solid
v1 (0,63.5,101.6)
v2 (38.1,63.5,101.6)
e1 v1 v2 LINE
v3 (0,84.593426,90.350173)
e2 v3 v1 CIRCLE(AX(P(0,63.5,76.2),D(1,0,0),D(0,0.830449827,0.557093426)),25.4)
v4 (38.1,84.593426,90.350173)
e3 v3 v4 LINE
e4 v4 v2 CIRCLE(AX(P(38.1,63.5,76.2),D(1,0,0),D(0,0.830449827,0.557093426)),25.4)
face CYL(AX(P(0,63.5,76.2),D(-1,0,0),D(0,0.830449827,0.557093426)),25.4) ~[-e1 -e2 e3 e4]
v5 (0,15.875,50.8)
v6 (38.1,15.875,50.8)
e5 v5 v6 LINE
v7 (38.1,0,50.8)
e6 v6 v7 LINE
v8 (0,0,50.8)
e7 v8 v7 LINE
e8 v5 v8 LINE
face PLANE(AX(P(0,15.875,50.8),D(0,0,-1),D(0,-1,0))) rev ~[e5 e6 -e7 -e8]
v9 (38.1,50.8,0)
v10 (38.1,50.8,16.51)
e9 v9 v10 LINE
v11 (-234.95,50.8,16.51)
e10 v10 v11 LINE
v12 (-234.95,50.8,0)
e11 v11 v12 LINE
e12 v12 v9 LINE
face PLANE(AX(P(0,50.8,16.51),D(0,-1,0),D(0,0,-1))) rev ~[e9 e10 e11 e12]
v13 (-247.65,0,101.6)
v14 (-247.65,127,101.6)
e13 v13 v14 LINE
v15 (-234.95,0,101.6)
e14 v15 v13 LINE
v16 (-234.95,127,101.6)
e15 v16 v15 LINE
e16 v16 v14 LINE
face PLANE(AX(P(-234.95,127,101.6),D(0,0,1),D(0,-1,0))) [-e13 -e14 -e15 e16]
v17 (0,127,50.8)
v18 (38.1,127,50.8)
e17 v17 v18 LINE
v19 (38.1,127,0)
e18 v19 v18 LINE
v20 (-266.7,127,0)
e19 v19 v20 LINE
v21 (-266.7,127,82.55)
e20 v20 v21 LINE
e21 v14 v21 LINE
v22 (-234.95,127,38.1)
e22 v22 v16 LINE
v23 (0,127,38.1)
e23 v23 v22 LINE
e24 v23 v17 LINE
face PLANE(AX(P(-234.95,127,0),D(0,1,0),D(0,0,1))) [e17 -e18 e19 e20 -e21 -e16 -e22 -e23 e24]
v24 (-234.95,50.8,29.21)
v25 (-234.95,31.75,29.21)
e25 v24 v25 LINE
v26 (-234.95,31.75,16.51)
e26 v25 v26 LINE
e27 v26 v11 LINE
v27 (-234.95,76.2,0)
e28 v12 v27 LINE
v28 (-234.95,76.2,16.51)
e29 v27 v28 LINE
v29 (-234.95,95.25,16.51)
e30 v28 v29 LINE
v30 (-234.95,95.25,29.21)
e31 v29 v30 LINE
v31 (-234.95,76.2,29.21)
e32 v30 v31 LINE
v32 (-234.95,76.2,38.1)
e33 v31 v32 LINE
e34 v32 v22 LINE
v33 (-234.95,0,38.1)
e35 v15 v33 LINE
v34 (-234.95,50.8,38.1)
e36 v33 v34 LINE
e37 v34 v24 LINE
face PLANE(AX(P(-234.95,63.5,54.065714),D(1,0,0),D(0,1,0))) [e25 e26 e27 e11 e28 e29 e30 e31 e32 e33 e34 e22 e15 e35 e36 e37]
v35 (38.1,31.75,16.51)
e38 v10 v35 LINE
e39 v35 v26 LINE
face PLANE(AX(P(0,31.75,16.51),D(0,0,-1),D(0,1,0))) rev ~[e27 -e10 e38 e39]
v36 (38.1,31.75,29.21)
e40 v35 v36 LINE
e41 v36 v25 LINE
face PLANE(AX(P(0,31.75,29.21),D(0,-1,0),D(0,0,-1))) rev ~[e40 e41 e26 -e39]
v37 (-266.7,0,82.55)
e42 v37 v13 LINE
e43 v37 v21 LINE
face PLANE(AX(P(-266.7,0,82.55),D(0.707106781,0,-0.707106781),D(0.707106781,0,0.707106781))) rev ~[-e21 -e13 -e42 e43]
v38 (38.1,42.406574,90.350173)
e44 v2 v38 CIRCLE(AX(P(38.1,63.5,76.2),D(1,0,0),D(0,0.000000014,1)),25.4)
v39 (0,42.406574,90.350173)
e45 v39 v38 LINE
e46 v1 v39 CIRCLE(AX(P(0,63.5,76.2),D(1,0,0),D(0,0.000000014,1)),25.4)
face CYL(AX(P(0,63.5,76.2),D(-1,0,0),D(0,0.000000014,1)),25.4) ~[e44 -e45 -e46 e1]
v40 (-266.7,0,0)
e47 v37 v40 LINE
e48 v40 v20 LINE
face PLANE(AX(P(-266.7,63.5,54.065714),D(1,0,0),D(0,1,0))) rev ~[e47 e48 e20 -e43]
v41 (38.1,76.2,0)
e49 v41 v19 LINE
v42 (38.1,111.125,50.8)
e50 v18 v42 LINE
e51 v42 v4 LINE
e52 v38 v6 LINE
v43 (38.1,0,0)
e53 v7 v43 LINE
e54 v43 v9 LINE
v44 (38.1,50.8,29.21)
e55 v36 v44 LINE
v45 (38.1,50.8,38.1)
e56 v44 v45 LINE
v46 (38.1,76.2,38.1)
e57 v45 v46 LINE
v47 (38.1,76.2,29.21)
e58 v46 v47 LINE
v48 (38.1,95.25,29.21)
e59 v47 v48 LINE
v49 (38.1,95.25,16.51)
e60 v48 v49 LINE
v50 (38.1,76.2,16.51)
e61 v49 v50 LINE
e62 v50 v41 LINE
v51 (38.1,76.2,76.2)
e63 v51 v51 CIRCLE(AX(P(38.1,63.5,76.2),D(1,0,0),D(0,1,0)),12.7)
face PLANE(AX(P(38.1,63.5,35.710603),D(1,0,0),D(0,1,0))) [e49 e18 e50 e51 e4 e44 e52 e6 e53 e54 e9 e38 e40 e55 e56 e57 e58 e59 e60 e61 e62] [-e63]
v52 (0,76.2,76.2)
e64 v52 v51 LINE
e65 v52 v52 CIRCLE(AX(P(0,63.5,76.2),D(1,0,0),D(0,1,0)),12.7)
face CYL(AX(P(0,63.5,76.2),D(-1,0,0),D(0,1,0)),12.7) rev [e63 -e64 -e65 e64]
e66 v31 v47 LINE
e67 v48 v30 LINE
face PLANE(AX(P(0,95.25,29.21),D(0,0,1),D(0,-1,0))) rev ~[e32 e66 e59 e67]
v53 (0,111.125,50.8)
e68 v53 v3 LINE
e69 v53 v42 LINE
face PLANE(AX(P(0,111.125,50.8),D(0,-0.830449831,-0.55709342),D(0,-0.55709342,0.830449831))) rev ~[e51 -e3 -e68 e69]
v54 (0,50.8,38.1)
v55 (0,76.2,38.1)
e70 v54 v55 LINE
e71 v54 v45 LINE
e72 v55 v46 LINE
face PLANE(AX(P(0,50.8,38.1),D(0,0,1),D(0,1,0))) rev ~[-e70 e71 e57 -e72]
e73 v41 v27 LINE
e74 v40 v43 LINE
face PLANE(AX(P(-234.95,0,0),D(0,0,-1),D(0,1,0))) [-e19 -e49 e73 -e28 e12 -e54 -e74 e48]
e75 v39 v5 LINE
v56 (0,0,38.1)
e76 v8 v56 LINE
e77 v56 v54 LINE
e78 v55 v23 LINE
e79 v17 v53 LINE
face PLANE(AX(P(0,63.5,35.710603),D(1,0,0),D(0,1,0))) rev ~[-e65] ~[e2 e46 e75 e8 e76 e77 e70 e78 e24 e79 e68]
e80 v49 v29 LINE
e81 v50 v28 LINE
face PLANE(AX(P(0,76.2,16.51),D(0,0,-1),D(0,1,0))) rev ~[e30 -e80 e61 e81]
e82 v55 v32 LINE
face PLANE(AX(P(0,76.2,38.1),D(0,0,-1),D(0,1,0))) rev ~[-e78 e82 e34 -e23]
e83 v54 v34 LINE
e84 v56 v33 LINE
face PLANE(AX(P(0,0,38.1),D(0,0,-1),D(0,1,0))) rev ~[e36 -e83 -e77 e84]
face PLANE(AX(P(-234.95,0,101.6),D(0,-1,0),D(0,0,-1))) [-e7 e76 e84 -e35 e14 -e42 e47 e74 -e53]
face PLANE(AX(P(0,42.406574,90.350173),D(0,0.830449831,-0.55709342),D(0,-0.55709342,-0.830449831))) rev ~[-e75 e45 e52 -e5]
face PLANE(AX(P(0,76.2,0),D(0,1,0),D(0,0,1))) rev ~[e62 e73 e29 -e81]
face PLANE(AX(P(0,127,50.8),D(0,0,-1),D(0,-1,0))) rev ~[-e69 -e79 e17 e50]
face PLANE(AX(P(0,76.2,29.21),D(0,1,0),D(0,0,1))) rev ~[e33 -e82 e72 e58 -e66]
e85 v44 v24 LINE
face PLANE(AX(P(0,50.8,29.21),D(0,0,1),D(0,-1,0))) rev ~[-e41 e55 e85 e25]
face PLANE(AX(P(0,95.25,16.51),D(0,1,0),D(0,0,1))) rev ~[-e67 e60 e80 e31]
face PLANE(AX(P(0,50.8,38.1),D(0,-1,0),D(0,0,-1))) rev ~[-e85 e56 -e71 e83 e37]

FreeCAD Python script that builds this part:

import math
import FreeCAD as App
import Part
import Sketcher
from FreeCAD import Vector
Q = App.Units.Quantity

doc = App.newDocument("Part")
body = doc.addObject("PartDesign::Body", "Body")

sketch1 = body.newObject("Sketcher::SketchObject", "Sketch")
sketch1.AttachmentSupport = (doc.getObject("YZ_Plane"), [""])
sketch1.MapMode = "FlatFace"
sketch1.addGeometry([
    Part.ArcOfCircle(Part.Circle(Vector(63.5, 76.2, 0), Vector(0, 0, 1), 25.4), math.radians(33.855026), math.radians(90.000001)),
    Part.ArcOfCircle(Part.Circle(Vector(63.5, 76.2, 0), Vector(0, 0, 1), 25.4), math.radians(89.999999), math.radians(146.144974)),
    Part.LineSegment(Vector(42.406574, 90.350173, 0), Vector(15.875, 50.8, 0)),
    Part.LineSegment(Vector(15.875, 50.8, 0), Vector(0, 50.8, 0)),
    Part.LineSegment(Vector(0, 50.8, 0), Vector(0, 0, 0)),
    Part.LineSegment(Vector(0, 0, 0), Vector(50.8, 0, 0)),
    Part.LineSegment(Vector(50.8, 0, 0), Vector(50.8, 16.51, 0)),
    Part.LineSegment(Vector(50.8, 16.51, 0), Vector(31.75, 16.51, 0)),
    Part.LineSegment(Vector(31.75, 16.51, 0), Vector(31.75, 29.21, 0)),
    Part.LineSegment(Vector(31.75, 29.21, 0), Vector(50.8, 29.21, 0)),
    Part.LineSegment(Vector(50.8, 29.21, 0), Vector(50.8, 38.1, 0)),
    Part.LineSegment(Vector(50.8, 38.1, 0), Vector(76.2, 38.1, 0)),
    Part.LineSegment(Vector(76.2, 38.1, 0), Vector(76.2, 29.21, 0)),
    Part.LineSegment(Vector(76.2, 29.21, 0), Vector(95.25, 29.21, 0)),
    Part.LineSegment(Vector(95.25, 29.21, 0), Vector(95.25, 16.51, 0)),
    Part.LineSegment(Vector(95.25, 16.51, 0), Vector(76.2, 16.51, 0)),
    Part.LineSegment(Vector(76.2, 16.51, 0), Vector(76.2, 0, 0)),
    Part.LineSegment(Vector(76.2, 0, 0), Vector(127, 0, 0)),
    Part.LineSegment(Vector(127, 0, 0), Vector(127, 50.8, 0)),
    Part.LineSegment(Vector(127, 50.8, 0), Vector(111.125, 50.8, 0)),
    Part.LineSegment(Vector(111.125, 50.8, 0), Vector(84.593426, 90.350173, 0)),
    Part.Circle(Vector(63.5, 76.2, 0), Vector(0, 0, 1), 12.7),
], False)
sketch1.addConstraint([
    Sketcher.Constraint("Tangent", 0, 2, 1, 1),
    Sketcher.Constraint("Tangent", 1, 2, 2, 1),
    Sketcher.Constraint("Coincident", 2, 2, 3, 1),
    Sketcher.Constraint("Coincident", 3, 2, 4, 1),
    Sketcher.Constraint("Coincident", 4, 2, 5, 1),
    Sketcher.Constraint("Coincident", 5, 2, 6, 1),
    Sketcher.Constraint("Coincident", 6, 2, 7, 1),
    Sketcher.Constraint("Coincident", 7, 2, 8, 1),
    Sketcher.Constraint("Coincident", 8, 2, 9, 1),
    Sketcher.Constraint("Coincident", 9, 2, 10, 1),
    Sketcher.Constraint("Coincident", 10, 2, 11, 1),
    Sketcher.Constraint("Coincident", 11, 2, 12, 1),
    Sketcher.Constraint("Coincident", 12, 2, 13, 1),
    Sketcher.Constraint("Coincident", 13, 2, 14, 1),
    Sketcher.Constraint("Coincident", 14, 2, 15, 1),
    Sketcher.Constraint("Coincident", 15, 2, 16, 1),
    Sketcher.Constraint("Coincident", 16, 2, 17, 1),
    Sketcher.Constraint("Coincident", 17, 2, 18, 1),
    Sketcher.Constraint("Coincident", 18, 2, 19, 1),
    Sketcher.Constraint("Coincident", 19, 2, 20, 1),
    Sketcher.Constraint("Tangent", 20, 2, 0, 1),
    Sketcher.Constraint("Horizontal", 3),
    Sketcher.Constraint("Vertical", 4),
    Sketcher.Constraint("Horizontal", 5),
    Sketcher.Constraint("Vertical", 6),
    Sketcher.Constraint("Horizontal", 7),
    Sketcher.Constraint("Vertical", 8),
    Sketcher.Constraint("Horizontal", 9),
    Sketcher.Constraint("Vertical", 10),
    Sketcher.Constraint("Horizontal", 11),
    Sketcher.Constraint("Vertical", 12),
    Sketcher.Constraint("Horizontal", 13),
    Sketcher.Constraint("Vertical", 14),
    Sketcher.Constraint("Horizontal", 15),
    Sketcher.Constraint("Vertical", 16),
    Sketcher.Constraint("Horizontal", 17),
    Sketcher.Constraint("Vertical", 18),
    Sketcher.Constraint("Horizontal", 19),
    Sketcher.Constraint("Coincident", 4, 2, -1, 1),
    Sketcher.Constraint("Coincident", 21, 3, 0, 3),
    Sketcher.Constraint("Equal", 0, 1),
    Sketcher.Constraint("PointOnObject", 16, 2, -1),
    Sketcher.Constraint("Horizontal", 9, 2, 12, 2),
    Sketcher.Constraint("Horizontal", 7, 2, 14, 2),
    Sketcher.Constraint("Horizontal", 3, 2, 18, 2),
    Sketcher.Constraint("Horizontal", 1, 2, 20, 2),
    Sketcher.Constraint("Vertical", 21, 3, 0, 2),
    Sketcher.Constraint("Vertical", 6, 2, 9, 2),
    Sketcher.Constraint("Vertical", 12, 2, 15, 2),
    Sketcher.Constraint("Equal", 9, 13),
    Sketcher.Constraint("Equal", 5, 17),
    Sketcher.Constraint("Equal", 3, 19),
    Sketcher.Constraint("Equal", 17, 4),
    Sketcher.Constraint("Diameter", 21, Q("1 in")),
    Sketcher.Constraint("Radius", 0, Q("1 in")),
    Sketcher.Constraint("DistanceX", 5, 1, 5, 2, Q("2 in")),
    Sketcher.Constraint("DistanceX", 11, 1, 11, 2, Q("1 in")),
    Sketcher.Constraint("DistanceY", 8, 1, 8, 2, Q("0.5 in")),
    Sketcher.Constraint("DistanceY", -1, 1, 0, 3, Q("3 in")),
    Sketcher.Constraint("DistanceX", 7, 2, 7, 1, Q("0.75 in")),
    Sketcher.Constraint("DistanceY", 6, 1, 6, 2, Q("0.65 in")),
    Sketcher.Constraint("DistanceY", 10, 1, 10, 2, Q("0.35 in")),
    Sketcher.Constraint("DistanceX", 3, 2, 3, 1, Q("0.625 in")),
])
pad1 = body.newObject("PartDesign::Pad", "Pad")
pad1.Profile = sketch1
pad1.Length = Q("1.5 in")

sketch2 = body.newObject("Sketcher::SketchObject", "Sketch001")
sketch2.AttachmentSupport = (doc.getObject("YZ_Plane"), [""])
sketch2.MapMode = "FlatFace"
sketch2.addGeometry([
    Part.LineSegment(Vector(127, 38.1, 0), Vector(127, 0, 0)),
    Part.LineSegment(Vector(127, 0, 0), Vector(76.2, 0, 0)),
    Part.LineSegment(Vector(76.2, 0, 0), Vector(76.2, 16.51, 0)),
    Part.LineSegment(Vector(76.2, 16.51, 0), Vector(95.25, 16.51, 0)),
    Part.LineSegment(Vector(95.25, 16.51, 0), Vector(95.25, 29.21, 0)),
    Part.LineSegment(Vector(95.25, 29.21, 0), Vector(76.2, 29.21, 0)),
    Part.LineSegment(Vector(76.2, 29.21, 0), Vector(76.2, 38.1, 0)),
    Part.LineSegment(Vector(76.2, 38.1, 0), Vector(127, 38.1, 0)),
], False)
sketch2.addConstraint([
    Sketcher.Constraint("Coincident", 0, 2, 1, 1),
    Sketcher.Constraint("Coincident", 1, 2, 2, 1),
    Sketcher.Constraint("Coincident", 2, 2, 3, 1),
    Sketcher.Constraint("Coincident", 3, 2, 4, 1),
    Sketcher.Constraint("Coincident", 4, 2, 5, 1),
    Sketcher.Constraint("Coincident", 5, 2, 6, 1),
    Sketcher.Constraint("Coincident", 6, 2, 7, 1),
    Sketcher.Constraint("Coincident", 7, 2, 0, 1),
    Sketcher.Constraint("Vertical", 0),
    Sketcher.Constraint("Horizontal", 1),
    Sketcher.Constraint("Vertical", 2),
    Sketcher.Constraint("Horizontal", 3),
    Sketcher.Constraint("Vertical", 4),
    Sketcher.Constraint("Horizontal", 5),
    Sketcher.Constraint("Vertical", 6),
    Sketcher.Constraint("Horizontal", 7),
    Sketcher.Constraint("PointOnObject", 0, 2, -1),
    Sketcher.Constraint("Vertical", 2, 2, 5, 2),
    Sketcher.Constraint("DistanceX", 1, 2, 1, 1, Q("2 in")),
    Sketcher.Constraint("DistanceY", 0, 2, 0, 1, Q("1.5 in")),
    Sketcher.Constraint("DistanceY", 4, 1, 4, 2, Q("0.5 in")),
    Sketcher.Constraint("DistanceX", -1, 1, 0, 2, Q("5 in")),
    Sketcher.Constraint("DistanceX", 3, 1, 3, 2, Q("0.75 in")),
    Sketcher.Constraint("DistanceY", 2, 1, 2, 2, Q("0.65 in")),
])
pad2 = body.newObject("PartDesign::Pad", "Pad001")
pad2.Profile = sketch2
pad2.Length = Q("9.25 in")
pad2.Reversed = True

sketch3 = body.newObject("Sketcher::SketchObject", "Sketch002")
sketch3.AttachmentSupport = (doc.getObject("YZ_Plane"), [""])
sketch3.MapMode = "FlatFace"
sketch3.addGeometry([
    Part.LineSegment(Vector(0, 38.1, 0), Vector(50.8, 38.1, 0)),
    Part.LineSegment(Vector(50.8, 38.1, 0), Vector(50.8, 29.21, 0)),
    Part.LineSegment(Vector(50.8, 29.21, 0), Vector(31.75, 29.21, 0)),
    Part.LineSegment(Vector(31.75, 29.21, 0), Vector(31.75, 16.51, 0)),
    Part.LineSegment(Vector(31.75, 16.51, 0), Vector(50.8, 16.51, 0)),
    Part.LineSegment(Vector(50.8, 16.51, 0), Vector(50.8, 0, 0)),
    Part.LineSegment(Vector(50.8, 0, 0), Vector(0, 0, 0)),
    Part.LineSegment(Vector(0, 0, 0), Vector(0, 38.1, 0)),
], False)
sketch3.addConstraint([
    Sketcher.Constraint("Coincident", 0, 2, 1, 1),
    Sketcher.Constraint("Coincident", 1, 2, 2, 1),
    Sketcher.Constraint("Coincident", 2, 2, 3, 1),
    Sketcher.Constraint("Coincident", 3, 2, 4, 1),
    Sketcher.Constraint("Coincident", 4, 2, 5, 1),
    Sketcher.Constraint("Coincident", 5, 2, 6, 1),
    Sketcher.Constraint("Coincident", 6, 2, 7, 1),
    Sketcher.Constraint("Coincident", 7, 2, 0, 1),
    Sketcher.Constraint("Horizontal", 0),
    Sketcher.Constraint("Vertical", 1),
    Sketcher.Constraint("Horizontal", 2),
    Sketcher.Constraint("Vertical", 3),
    Sketcher.Constraint("Horizontal", 4),
    Sketcher.Constraint("Vertical", 5),
    Sketcher.Constraint("Horizontal", 6),
    Sketcher.Constraint("Vertical", 7),
    Sketcher.Constraint("Coincident", 6, 2, -1, 1),
    Sketcher.Constraint("Vertical", 1, 2, 4, 2),
    Sketcher.Constraint("DistanceX", 0, 1, 0, 2, Q("2 in")),
    Sketcher.Constraint("DistanceY", 3, 2, 3, 1, Q("0.5 in")),
    Sketcher.Constraint("DistanceY", 7, 1, 7, 2, Q("1.5 in")),
    Sketcher.Constraint("DistanceX", 2, 2, 2, 1, Q("0.75 in")),
    Sketcher.Constraint("DistanceY", 1, 2, 1, 1, Q("0.35 in")),
])
pad3 = body.newObject("PartDesign::Pad", "Pad002")
pad3.Profile = sketch3
pad3.Length = Q("9.25 in")
pad3.Reversed = True

sketch4 = body.newObject("Sketcher::SketchObject", "Sketch003")
sketch4.AttachmentSupport = (doc.getObject("YZ_Plane"), [""])
sketch4.MapMode = "FlatFace"
sketch4.AttachmentOffset = App.Placement(Vector(0, 0, -9.25 * 25.4), App.Rotation())
sketch4.addGeometry([
    Part.LineSegment(Vector(127, 101.6, 0), Vector(0, 101.6, 0)),
    Part.LineSegment(Vector(0, 101.6, 0), Vector(0, 0, 0)),
    Part.LineSegment(Vector(0, 0, 0), Vector(127, 0, 0)),
    Part.LineSegment(Vector(127, 0, 0), Vector(127, 101.6, 0)),
], False)
sketch4.addConstraint([
    Sketcher.Constraint("Coincident", 0, 2, 1, 1),
    Sketcher.Constraint("Coincident", 1, 2, 2, 1),
    Sketcher.Constraint("Coincident", 2, 2, 3, 1),
    Sketcher.Constraint("Coincident", 3, 2, 0, 1),
    Sketcher.Constraint("Horizontal", 0),
    Sketcher.Constraint("Vertical", 1),
    Sketcher.Constraint("Horizontal", 2),
    Sketcher.Constraint("Vertical", 3),
    Sketcher.Constraint("Coincident", 1, 2, -1, 1),
    Sketcher.Constraint("DistanceX", 0, 2, 0, 1, Q("5 in")),
    Sketcher.Constraint("DistanceY", 1, 2, 1, 1, Q("4 in")),
])
pad4 = body.newObject("PartDesign::Pad", "Pad003")
pad4.Profile = sketch4
pad4.Length = Q("1.25 in")
pad4.Reversed = True

sketch5 = body.newObject("Sketcher::SketchObject", "Sketch004")
sketch5.AttachmentSupport = (doc.getObject("XZ_Plane"), [""])
sketch5.MapMode = "FlatFace"
sketch5.addGeometry([
    Part.LineSegment(Vector(-266.7, 101.6, 0), Vector(-266.7, 82.55, 0)),
    Part.LineSegment(Vector(-266.7, 82.55, 0), Vector(-247.65, 101.6, 0)),
    Part.LineSegment(Vector(-247.65, 101.6, 0), Vector(-266.7, 101.6, 0)),
], False)
sketch5.addConstraint([
    Sketcher.Constraint("Coincident", 0, 2, 1, 1),
    Sketcher.Constraint("Coincident", 1, 2, 2, 1),
    Sketcher.Constraint("Coincident", 2, 2, 0, 1),
    Sketcher.Constraint("Vertical", 0),
    Sketcher.Constraint("Horizontal", 2),
    Sketcher.Constraint("Equal", 2, 0),
    Sketcher.Constraint("DistanceY", -1, 1, 1, 2, Q("4 in")),
    Sketcher.Constraint("DistanceX", 2, 2, 2, 1, Q("0.75 in")),
    Sketcher.Constraint("DistanceX", 0, 2, -1, 1, Q("10.5 in")),
])
pocket1 = body.newObject("PartDesign::Pocket", "Pocket")
pocket1.Profile = sketch5
pocket1.Type = "ThroughAll"

doc.recompute()
